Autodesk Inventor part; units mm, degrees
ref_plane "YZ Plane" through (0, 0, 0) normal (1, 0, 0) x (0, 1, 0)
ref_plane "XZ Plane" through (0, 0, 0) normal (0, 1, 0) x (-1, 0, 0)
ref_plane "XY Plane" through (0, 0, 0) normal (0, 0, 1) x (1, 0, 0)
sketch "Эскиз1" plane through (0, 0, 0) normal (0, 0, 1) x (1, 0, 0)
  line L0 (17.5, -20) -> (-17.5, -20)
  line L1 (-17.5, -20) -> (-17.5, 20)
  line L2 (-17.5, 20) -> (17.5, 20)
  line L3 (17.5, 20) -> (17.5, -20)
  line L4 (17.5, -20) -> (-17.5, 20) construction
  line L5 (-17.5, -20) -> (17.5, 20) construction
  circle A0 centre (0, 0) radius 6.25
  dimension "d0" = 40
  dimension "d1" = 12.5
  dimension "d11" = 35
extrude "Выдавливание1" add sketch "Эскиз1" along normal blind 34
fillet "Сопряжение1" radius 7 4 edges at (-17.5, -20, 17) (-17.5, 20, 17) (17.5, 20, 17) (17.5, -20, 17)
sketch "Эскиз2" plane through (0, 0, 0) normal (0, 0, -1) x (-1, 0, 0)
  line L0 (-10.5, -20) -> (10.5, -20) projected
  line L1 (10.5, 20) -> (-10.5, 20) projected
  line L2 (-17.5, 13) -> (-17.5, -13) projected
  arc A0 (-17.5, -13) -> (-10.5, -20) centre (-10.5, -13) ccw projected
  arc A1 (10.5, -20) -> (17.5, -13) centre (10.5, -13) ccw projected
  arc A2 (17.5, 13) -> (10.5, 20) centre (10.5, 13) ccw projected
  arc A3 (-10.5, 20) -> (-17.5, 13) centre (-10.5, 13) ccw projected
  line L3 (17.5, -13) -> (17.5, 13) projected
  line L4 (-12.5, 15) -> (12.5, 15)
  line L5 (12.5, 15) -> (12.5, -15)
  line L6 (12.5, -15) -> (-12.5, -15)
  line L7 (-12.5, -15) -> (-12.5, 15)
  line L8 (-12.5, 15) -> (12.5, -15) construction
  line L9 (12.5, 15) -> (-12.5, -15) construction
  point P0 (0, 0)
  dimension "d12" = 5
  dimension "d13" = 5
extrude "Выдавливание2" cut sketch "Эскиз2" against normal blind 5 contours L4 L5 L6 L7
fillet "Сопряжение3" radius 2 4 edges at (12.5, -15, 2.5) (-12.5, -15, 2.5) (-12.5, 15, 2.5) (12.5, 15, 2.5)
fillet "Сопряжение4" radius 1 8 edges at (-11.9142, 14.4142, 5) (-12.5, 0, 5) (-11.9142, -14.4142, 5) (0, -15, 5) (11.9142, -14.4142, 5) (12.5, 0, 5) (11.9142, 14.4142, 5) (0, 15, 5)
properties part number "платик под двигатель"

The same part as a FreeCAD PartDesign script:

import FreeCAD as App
import Part
import Sketcher

V = App.Vector


def edges_at(feature, points):
    """Names of the edges that pass closest to the given points."""
    edges = feature.Shape.Edges
    near = lambda p: min(range(len(edges)), key=lambda i: edges[i].distToShape(Part.Vertex(*p))[0])
    return sorted({f"Edge{near(p) + 1}" for p in points})

doc = App.newDocument("Part")
body = doc.addObject("PartDesign::Body", "Body")

# Sketch on XY plane
sketch1 = doc.addObject("Sketcher::SketchObject", "Sketch")
body.addObject(sketch1)
sketch1.AttachmentSupport = (doc.XY_Plane, [""])
sketch1.MapMode = "FlatFace"
sketch1.addGeometry(Part.LineSegment(V(-18, -20, 0), V(18, -20, 0)), False)
sketch1.addGeometry(Part.LineSegment(V(18, -20, 0), V(18, 20, 0)), False)
sketch1.addGeometry(Part.LineSegment(V(18, 20, 0), V(-18, 20, 0)), False)
sketch1.addGeometry(Part.LineSegment(V(-18, 20, 0), V(-18, -20, 0)), False)
sketch1.addGeometry(Part.Circle(V(0, 0, 0), V(0, 0, 1), 6), False)
sketch1.addConstraint(Sketcher.Constraint("Coincident", 0, 2, 1, 1))
sketch1.addConstraint(Sketcher.Constraint("Coincident", 1, 2, 2, 1))
sketch1.addConstraint(Sketcher.Constraint("Coincident", 2, 2, 3, 1))
sketch1.addConstraint(Sketcher.Constraint("Coincident", 3, 2, 0, 1))
sketch1.addConstraint(Sketcher.Constraint("Horizontal", 0))
sketch1.addConstraint(Sketcher.Constraint("Vertical", 1))
sketch1.addConstraint(Sketcher.Constraint("Horizontal", 2))
sketch1.addConstraint(Sketcher.Constraint("Vertical", 3))
sketch1.addConstraint(Sketcher.Constraint("Coincident", 4, 3, -1, 1))
sketch1.addConstraint(Sketcher.Constraint("Symmetric", 0, 2, 2, 2, -1, 1))
sketch1.addConstraint(Sketcher.Constraint("Diameter", 4, 12.5))
sketch1.addConstraint(Sketcher.Constraint("DistanceX", 0, 1, 0, 2, 35.0))
sketch1.addConstraint(Sketcher.Constraint("DistanceY", 1, 1, 1, 2, 40.0))
pad1 = doc.addObject("PartDesign::Pad", "Pad")
body.addObject(pad1)
pad1.Profile = sketch1
pad1.Length = 34
doc.recompute()

fillet = doc.addObject("PartDesign::Fillet", "Fillet")
body.addObject(fillet)
fillet.Base = (pad1, edges_at(pad1, [
    (-17.5, -20, 17),
    (-17.5, 20, 17),
    (17.5, 20, 17),
    (17.5, -20, 17),
]))
fillet.Radius = 7

# Sketch on XY plane
sketch2 = doc.addObject("Sketcher::SketchObject", "Sketch001")
body.addObject(sketch2)
sketch2.AttachmentSupport = (doc.XY_Plane, [""])
sketch2.MapMode = "FlatFace"
sketch2.addGeometry(Part.LineSegment(V(-12, 15, 0), V(12, 15, 0)), False)
sketch2.addGeometry(Part.LineSegment(V(12, 15, 0), V(12, -15, 0)), False)
sketch2.addGeometry(Part.LineSegment(V(12, -15, 0), V(-12, -15, 0)), False)
sketch2.addGeometry(Part.LineSegment(V(-12, -15, 0), V(-12, 15, 0)), False)
sketch2.addConstraint(Sketcher.Constraint("Coincident", 0, 2, 1, 1))
sketch2.addConstraint(Sketcher.Constraint("Coincident", 1, 2, 2, 1))
sketch2.addConstraint(Sketcher.Constraint("Coincident", 2, 2, 3, 1))
sketch2.addConstraint(Sketcher.Constraint("Coincident", 3, 2, 0, 1))
sketch2.addConstraint(Sketcher.Constraint("Horizontal", 0))
sketch2.addConstraint(Sketcher.Constraint("Vertical", 1))
sketch2.addConstraint(Sketcher.Constraint("Horizontal", 2))
sketch2.addConstraint(Sketcher.Constraint("Vertical", 3))
sketch2.addConstraint(Sketcher.Constraint("Symmetric", 0, 2, 2, 2, -1, 1))
sketch2.addConstraint(Sketcher.Constraint("DistanceX", 0, 1, 0, 2, 25.0))
sketch2.addConstraint(Sketcher.Constraint("DistanceY", 1, 2, 1, 1, 30.0))
pocket1 = doc.addObject("PartDesign::Pocket", "Pocket")
body.addObject(pocket1)
pocket1.Profile = sketch2
pocket1.Length = 5
pocket1.Reversed = True
doc.recompute()

fillet2 = doc.addObject("PartDesign::Fillet", "Fillet001")
body.addObject(fillet2)
fillet2.Base = (pocket1, edges_at(pocket1, [
    (12.5, -15, 2.5),
    (-12.5, -15, 2.5),
    (-12.5, 15, 2.5),
    (12.5, 15, 2.5),
]))
fillet2.Radius = 2
doc.recompute()

fillet3 = doc.addObject("PartDesign::Fillet", "Fillet002")
body.addObject(fillet3)
fillet3.Base = (fillet2, edges_at(fillet2, [
    (-11.914, 14.414, 5),
    (-12.5, 0, 5),
    (-11.914, -14.414, 5),
    (0, -15, 5),
    (11.914, -14.414, 5),
    (12.5, 0, 5),
    (11.914, 14.414, 5),
    (0, 15, 5),
]))
fillet3.Radius = 1

doc.recompute()
